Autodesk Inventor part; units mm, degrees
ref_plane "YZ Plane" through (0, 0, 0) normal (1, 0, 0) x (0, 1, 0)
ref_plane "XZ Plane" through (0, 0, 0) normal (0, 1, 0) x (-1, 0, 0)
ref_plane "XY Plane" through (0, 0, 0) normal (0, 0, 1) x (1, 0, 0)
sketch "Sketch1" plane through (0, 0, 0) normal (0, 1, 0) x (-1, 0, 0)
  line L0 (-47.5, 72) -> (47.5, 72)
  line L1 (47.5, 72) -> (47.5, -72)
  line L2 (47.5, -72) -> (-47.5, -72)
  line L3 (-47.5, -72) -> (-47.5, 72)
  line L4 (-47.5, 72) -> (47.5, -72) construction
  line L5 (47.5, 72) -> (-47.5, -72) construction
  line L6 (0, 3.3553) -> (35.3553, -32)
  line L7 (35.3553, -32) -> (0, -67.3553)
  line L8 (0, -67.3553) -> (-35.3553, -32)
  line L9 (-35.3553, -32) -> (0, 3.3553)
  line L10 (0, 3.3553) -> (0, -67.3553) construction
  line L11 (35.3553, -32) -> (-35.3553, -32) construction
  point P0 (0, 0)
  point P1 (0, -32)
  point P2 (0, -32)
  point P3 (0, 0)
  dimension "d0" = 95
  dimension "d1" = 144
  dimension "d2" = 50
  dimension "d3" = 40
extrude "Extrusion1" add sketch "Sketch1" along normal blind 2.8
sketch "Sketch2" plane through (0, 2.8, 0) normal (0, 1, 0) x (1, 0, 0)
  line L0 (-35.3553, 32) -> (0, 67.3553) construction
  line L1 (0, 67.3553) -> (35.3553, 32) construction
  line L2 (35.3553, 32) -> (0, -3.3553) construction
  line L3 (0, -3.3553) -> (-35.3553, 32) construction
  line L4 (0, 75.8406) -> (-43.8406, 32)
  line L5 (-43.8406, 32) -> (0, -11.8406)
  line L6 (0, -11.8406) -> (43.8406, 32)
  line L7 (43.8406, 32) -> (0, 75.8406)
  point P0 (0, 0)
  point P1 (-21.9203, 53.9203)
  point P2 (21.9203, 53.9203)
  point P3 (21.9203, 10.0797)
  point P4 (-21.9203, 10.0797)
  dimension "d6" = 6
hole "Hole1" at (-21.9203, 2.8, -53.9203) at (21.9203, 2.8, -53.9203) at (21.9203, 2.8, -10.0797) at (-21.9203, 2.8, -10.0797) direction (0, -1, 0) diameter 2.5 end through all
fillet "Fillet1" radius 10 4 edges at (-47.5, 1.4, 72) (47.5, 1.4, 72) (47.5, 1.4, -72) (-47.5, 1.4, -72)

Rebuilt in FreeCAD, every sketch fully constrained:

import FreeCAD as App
import Part
import Sketcher
from FreeCAD import Vector


def edges_at(feature, points):
    """Names of the edges that pass closest to the given points."""
    edges = feature.Shape.Edges
    near = lambda p: min(range(len(edges)), key=lambda i: edges[i].distToShape(Part.Vertex(*p))[0])
    return sorted({f"Edge{near(p) + 1}" for p in points})


def add_polygon(sketch, points):
    """Adds a closed chain of lines whose ends are joined by coincident constraints."""
    first, n = sketch.GeometryCount, len(points)
    for a, b in zip(points, points[1:] + points[:1]):
        sketch.addGeometry(Part.LineSegment(App.Vector(*a, 0), App.Vector(*b, 0)), False)
    for i in range(n):
        sketch.addConstraint(Sketcher.Constraint("Coincident", first + i, 2, first + (i + 1) % n, 1))

doc = App.newDocument("Part")
body = doc.addObject("PartDesign::Body", "Body")

# Sketch on XZ plane
sketch1 = body.newObject("Sketcher::SketchObject", "Sketch")
sketch1.AttachmentSupport = (doc.getObject("XZ_Plane"), [""])
sketch1.MapMode = "FlatFace"
add_polygon(sketch1, [(-48, 72), (48, 72), (48, -72), (-48, -72)])  # lines 0-3
add_polygon(sketch1, [(35, -32), (0, 3), (-35, -32), (0, -67)])  # lines 4-7
sketch1.addConstraint([
    Sketcher.Constraint("Horizontal", 0),
    Sketcher.Constraint("Vertical", 1),
    Sketcher.Constraint("Horizontal", 2),
    Sketcher.Constraint("Vertical", 3),
    Sketcher.Constraint("Symmetric", 0, 2, 2, 2, -1, 1),
    Sketcher.Constraint("Symmetric", 5, 2, 7, 2, -2),
    Sketcher.Constraint("PointOnObject", 4, 2, -2),
    Sketcher.Constraint("PointOnObject", 6, 2, -2),
    Sketcher.Constraint("Perpendicular", 4, 5),
    Sketcher.Constraint("Perpendicular", 5, 6),
    Sketcher.Constraint("DistanceX", 0, 1, 0, 2, 95.0),
    Sketcher.Constraint("DistanceY", 1, 2, 1, 1, 144.0),
    Sketcher.Constraint("Distance", 4, 50.0),
    Sketcher.Constraint("DistanceY", 2, 2, 5, 2, 40.0),
])
pad1 = body.newObject("PartDesign::Pad", "Pad")
pad1.Profile = sketch1
pad1.Length = 2.8
pad1.Reversed = True

# Sketch on XZ plane
sketch2 = body.newObject("Sketcher::SketchObject", "Sketch001")
sketch2.AttachmentSupport = (doc.getObject("XZ_Plane"), [""])
sketch2.MapMode = "FlatFace"
sketch2.AttachmentOffset = App.Placement(Vector(0, 0, -2.8), App.Rotation())
sketch2.addGeometry([
    Part.Circle(Vector(-21.9, -53.9, 0), Vector(0, 0, 1), 1.2),
    Part.Circle(Vector(21.9, -53.9, 0), Vector(0, 0, 1), 1.2),
    Part.Circle(Vector(21.9, -10.1, 0), Vector(0, 0, 1), 1.2),
    Part.Circle(Vector(-21.9, -10.1, 0), Vector(0, 0, 1), 1.2),
], False)
sketch2.addConstraint([
    Sketcher.Constraint("Equal", 0, 1),
    Sketcher.Constraint("Equal", 1, 2),
    Sketcher.Constraint("Equal", 2, 3),
    Sketcher.Constraint("Symmetric", 0, 3, 1, 3, -2),
    Sketcher.Constraint("Symmetric", 2, 3, 3, 3, -2),
    Sketcher.Constraint("Vertical", 1, 3, 2, 3),
    Sketcher.Constraint("Diameter", 0, 2.5),
    Sketcher.Constraint("DistanceX", 0, 3, -1, 1, 21.9203),
    Sketcher.Constraint("DistanceY", 0, 3, -1, 1, 53.9203),
    Sketcher.Constraint("DistanceY", 2, 3, -1, 1, 10.0797),
])
doc.recompute()
hole = body.newObject("PartDesign::Hole", "Hole")
hole.Profile = sketch2
hole.ThreadType = "None"
hole.Diameter = 2.5
hole.DepthType = "ThroughAll"
hole.Reversed = True
doc.recompute()

fillet = body.newObject("PartDesign::Fillet", "Fillet")
fillet.Base = (hole, edges_at(hole, [
    (-47.5, 1.4, 72),
    (47.5, 1.4, 72),
    (47.5, 1.4, -72),
    (-47.5, 1.4, -72),
]))
fillet.Radius = 10

doc.recompute()
